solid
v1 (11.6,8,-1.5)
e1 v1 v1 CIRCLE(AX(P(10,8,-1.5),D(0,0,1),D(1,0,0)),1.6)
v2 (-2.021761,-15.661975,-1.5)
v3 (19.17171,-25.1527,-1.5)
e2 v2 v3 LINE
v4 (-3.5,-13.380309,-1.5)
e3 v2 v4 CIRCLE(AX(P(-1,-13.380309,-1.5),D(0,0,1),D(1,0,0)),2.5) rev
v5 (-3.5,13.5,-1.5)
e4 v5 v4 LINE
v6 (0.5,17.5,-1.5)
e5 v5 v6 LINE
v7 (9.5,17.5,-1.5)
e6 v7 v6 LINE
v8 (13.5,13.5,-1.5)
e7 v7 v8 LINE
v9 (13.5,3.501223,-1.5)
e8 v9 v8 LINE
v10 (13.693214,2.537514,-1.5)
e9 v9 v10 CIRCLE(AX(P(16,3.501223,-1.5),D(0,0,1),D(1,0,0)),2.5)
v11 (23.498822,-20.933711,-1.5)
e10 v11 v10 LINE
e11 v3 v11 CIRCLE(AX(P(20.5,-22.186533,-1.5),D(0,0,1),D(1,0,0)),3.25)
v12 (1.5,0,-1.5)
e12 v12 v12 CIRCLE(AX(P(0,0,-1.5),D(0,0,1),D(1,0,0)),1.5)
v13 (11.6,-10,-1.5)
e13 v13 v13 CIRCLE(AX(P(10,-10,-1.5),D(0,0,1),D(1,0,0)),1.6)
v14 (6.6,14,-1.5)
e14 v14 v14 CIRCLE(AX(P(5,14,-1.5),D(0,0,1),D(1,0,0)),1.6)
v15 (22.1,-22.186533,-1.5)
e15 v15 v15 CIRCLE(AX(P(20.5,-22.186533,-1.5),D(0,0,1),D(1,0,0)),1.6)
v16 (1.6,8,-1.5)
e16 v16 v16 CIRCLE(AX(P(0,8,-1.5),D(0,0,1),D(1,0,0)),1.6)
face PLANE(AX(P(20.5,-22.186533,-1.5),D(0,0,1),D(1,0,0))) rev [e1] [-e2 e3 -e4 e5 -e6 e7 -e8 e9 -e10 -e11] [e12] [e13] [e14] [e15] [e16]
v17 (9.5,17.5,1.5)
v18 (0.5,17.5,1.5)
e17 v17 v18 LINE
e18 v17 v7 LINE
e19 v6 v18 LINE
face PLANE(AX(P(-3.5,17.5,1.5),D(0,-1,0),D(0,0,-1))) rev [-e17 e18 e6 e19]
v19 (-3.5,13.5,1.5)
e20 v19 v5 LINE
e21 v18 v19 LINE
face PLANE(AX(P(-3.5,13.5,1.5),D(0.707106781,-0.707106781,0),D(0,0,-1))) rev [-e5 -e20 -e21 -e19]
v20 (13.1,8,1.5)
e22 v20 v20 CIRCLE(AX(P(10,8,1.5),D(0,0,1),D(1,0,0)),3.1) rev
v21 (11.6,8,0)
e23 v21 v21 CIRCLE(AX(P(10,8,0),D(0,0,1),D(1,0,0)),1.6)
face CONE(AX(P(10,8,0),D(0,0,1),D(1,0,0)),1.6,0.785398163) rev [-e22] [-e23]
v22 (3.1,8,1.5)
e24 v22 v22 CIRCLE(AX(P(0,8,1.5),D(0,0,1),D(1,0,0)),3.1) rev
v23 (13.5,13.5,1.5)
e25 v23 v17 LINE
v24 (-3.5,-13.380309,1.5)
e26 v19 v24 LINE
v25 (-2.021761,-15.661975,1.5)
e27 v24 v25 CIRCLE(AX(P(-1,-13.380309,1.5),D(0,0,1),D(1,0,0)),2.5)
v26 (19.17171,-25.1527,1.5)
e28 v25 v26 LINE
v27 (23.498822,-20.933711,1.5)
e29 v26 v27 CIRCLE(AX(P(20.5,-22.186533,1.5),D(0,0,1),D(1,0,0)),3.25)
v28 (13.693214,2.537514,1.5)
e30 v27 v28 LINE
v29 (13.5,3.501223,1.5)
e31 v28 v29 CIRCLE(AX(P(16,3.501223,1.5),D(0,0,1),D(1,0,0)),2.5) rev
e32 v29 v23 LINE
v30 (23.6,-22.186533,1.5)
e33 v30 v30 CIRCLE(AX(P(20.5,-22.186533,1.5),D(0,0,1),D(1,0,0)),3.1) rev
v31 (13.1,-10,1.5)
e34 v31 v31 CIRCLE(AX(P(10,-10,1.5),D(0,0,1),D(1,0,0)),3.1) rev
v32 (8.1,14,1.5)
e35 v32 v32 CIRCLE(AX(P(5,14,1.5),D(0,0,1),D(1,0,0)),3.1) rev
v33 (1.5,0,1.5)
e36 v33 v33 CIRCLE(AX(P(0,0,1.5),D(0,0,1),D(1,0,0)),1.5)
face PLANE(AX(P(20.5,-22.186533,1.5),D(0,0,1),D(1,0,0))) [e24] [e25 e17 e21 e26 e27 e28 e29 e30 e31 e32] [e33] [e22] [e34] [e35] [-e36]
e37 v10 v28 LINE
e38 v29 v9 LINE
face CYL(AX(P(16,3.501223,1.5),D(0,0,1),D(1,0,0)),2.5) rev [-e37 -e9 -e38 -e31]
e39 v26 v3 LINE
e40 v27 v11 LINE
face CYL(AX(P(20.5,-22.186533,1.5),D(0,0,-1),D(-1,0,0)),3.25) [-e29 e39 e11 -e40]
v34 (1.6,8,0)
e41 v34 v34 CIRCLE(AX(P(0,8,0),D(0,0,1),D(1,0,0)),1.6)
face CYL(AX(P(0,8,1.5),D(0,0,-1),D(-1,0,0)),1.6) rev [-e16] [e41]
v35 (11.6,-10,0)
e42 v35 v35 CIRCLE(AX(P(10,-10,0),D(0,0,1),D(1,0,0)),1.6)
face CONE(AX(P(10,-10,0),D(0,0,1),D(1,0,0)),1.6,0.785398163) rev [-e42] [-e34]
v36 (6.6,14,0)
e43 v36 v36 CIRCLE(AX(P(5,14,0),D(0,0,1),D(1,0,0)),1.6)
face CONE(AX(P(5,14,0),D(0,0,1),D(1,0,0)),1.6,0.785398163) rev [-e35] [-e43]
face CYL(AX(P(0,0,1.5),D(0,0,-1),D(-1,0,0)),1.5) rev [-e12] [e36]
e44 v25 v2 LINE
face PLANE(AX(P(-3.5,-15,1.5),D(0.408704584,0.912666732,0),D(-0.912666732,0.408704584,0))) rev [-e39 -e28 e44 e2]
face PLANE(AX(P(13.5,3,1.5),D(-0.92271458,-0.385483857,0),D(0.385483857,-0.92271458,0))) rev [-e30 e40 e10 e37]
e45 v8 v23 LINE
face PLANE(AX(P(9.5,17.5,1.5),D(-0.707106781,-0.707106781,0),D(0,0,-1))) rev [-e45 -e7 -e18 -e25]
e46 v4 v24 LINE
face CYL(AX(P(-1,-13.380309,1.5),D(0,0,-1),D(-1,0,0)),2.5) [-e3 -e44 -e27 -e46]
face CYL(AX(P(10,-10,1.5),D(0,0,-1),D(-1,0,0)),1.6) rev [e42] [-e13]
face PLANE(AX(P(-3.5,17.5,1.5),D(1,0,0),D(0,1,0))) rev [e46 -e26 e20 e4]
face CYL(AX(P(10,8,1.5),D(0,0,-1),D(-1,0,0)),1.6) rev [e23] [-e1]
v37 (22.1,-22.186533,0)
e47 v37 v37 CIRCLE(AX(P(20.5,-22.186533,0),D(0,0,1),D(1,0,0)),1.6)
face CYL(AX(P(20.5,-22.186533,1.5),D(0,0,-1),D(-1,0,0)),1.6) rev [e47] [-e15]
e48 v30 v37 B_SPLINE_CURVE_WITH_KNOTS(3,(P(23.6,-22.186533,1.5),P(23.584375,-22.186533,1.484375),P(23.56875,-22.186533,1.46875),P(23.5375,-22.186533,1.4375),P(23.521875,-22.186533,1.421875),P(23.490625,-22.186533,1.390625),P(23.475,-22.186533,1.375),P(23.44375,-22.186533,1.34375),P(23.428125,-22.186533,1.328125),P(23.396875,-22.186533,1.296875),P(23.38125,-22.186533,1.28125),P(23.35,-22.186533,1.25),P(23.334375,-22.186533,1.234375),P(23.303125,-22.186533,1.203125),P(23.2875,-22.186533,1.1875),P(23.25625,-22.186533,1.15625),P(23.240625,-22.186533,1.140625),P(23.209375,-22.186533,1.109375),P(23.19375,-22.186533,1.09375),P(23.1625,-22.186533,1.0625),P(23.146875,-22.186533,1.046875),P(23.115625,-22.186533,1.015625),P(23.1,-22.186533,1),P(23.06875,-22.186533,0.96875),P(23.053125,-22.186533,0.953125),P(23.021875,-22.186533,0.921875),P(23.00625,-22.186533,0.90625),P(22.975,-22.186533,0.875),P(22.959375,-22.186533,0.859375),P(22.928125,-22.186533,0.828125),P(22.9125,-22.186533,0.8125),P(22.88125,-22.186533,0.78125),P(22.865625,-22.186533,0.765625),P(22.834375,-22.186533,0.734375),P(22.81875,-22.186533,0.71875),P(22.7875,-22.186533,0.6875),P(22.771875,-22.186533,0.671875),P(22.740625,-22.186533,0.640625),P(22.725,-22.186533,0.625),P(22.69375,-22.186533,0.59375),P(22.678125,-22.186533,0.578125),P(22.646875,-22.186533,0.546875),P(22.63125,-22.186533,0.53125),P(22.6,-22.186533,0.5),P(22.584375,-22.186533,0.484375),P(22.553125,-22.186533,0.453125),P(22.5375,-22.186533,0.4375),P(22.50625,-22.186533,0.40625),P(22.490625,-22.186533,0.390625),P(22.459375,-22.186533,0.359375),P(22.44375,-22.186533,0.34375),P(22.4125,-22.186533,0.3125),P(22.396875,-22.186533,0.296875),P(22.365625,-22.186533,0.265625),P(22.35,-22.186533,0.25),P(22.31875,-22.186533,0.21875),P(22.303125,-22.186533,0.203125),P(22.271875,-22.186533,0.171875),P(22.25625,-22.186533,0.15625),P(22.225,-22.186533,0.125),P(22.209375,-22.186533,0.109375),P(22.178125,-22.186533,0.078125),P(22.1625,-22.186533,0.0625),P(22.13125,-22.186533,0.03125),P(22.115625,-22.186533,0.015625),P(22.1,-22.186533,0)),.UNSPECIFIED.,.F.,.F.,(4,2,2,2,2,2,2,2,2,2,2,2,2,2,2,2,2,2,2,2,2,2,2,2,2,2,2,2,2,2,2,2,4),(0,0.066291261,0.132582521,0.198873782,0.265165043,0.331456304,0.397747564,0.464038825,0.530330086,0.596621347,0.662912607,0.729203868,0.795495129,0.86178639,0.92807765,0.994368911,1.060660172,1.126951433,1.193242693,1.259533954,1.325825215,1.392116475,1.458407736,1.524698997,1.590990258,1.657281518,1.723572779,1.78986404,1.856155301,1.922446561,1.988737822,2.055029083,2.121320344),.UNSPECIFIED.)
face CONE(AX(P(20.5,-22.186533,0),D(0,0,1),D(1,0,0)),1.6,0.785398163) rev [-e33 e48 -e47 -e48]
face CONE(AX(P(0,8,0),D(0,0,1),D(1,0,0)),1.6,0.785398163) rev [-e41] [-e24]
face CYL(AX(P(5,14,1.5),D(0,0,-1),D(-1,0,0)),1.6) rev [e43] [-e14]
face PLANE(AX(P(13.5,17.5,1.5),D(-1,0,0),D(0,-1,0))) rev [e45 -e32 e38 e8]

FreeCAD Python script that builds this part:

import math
import FreeCAD as App
import Part
import Sketcher

V = App.Vector


def edges_at(feature, points):
    """Names of the edges that pass closest to the given points."""
    edges = feature.Shape.Edges
    near = lambda p: min(range(len(edges)), key=lambda i: edges[i].distToShape(Part.Vertex(*p))[0])
    return sorted({f"Edge{near(p) + 1}" for p in points})

doc = App.newDocument("Part")
body = doc.addObject("PartDesign::Body", "Body")

sketch1 = body.newObject("Sketcher::SketchObject", "Sketch")
sketch1.AttachmentSupport = (doc.getObject("XY_Plane"), [""])
sketch1.MapMode = "FlatFace"
sketch1.addGeometry([
    Part.LineSegment(V(-3.5, 17.5, 0), V(-3.5, -15, 0)),
    Part.LineSegment(V(-3.5, -15, 0), V(19.2, -25.2, 0)),
    Part.ArcOfCircle(Part.Circle(V(20.5, -22.2, 0), V(0, 0, 1), 3.2), math.radians(-114), math.radians(23)),
    Part.LineSegment(V(23.5, -20.9, 0), V(13.5, 3, 0)),
    Part.LineSegment(V(13.5, 3, 0), V(13.5, 17.5, 0)),
    Part.LineSegment(V(13.5, 17.5, 0), V(-3.5, 17.5, 0)),
    Part.Circle(V(10, -10, 0), V(0, 0, 1), 1.6),
    Part.Circle(V(20.5, -22.2, 0), V(0, 0, 1), 1.6),
    Part.Circle(V(0, 0, 0), V(0, 0, 1), 1.5),
    Part.Circle(V(0, 8, 0), V(0, 0, 1), 1.6),
    Part.Circle(V(10, 8, 0), V(0, 0, 1), 1.6),
    Part.Circle(V(5, 14, 0), V(0, 0, 1), 1.6),
], False)
sketch1.addConstraint([
    Sketcher.Constraint("Coincident", 0, 2, 1, 1),
    Sketcher.Constraint("Tangent", 1, 2, 2, 1),
    Sketcher.Constraint("Tangent", 2, 2, 3, 1),
    Sketcher.Constraint("Coincident", 3, 2, 4, 1),
    Sketcher.Constraint("Coincident", 4, 2, 5, 1),
    Sketcher.Constraint("Coincident", 5, 2, 0, 1),
    Sketcher.Constraint("Vertical", 0),
    Sketcher.Constraint("Vertical", 4),
    Sketcher.Constraint("Horizontal", 5),
    Sketcher.Constraint("Coincident", 8, 3, -1, 1),
    Sketcher.Constraint("Coincident", 7, 3, 2, 3),
    Sketcher.Constraint("Equal", 6, 7),
    Sketcher.Constraint("Equal", 7, 9),
    Sketcher.Constraint("Equal", 9, 10),
    Sketcher.Constraint("Equal", 10, 11),
    Sketcher.Constraint("PointOnObject", 9, 3, -2),
    Sketcher.Constraint("Horizontal", 9, 3, 10, 3),
    Sketcher.Constraint("Vertical", 6, 3, 10, 3),
    Sketcher.Constraint("Diameter", 8, 3.0),
    Sketcher.Constraint("Diameter", 6, 3.2),
    Sketcher.Constraint("DistanceX", 5, 2, 5, 1, 17.0),
    Sketcher.Constraint("Radius", 2, 3.25),
    Sketcher.Constraint("DistanceY", 0, 2, 0, 1, 32.5),
    Sketcher.Constraint("DistanceY", 4, 1, 4, 2, 14.5),
    Sketcher.Constraint("DistanceX", -1, 1, 6, 3, 10.0),
    Sketcher.Constraint("DistanceY", 6, 3, -1, 1, 10.0),
    Sketcher.Constraint("DistanceY", -1, 1, 9, 3, 8.0),
    Sketcher.Constraint("DistanceX", -1, 1, 11, 3, 5.0),
    Sketcher.Constraint("DistanceY", -1, 1, 11, 3, 14.0),
    Sketcher.Constraint("DistanceY", 0, 2, -1, 1, 15.0),
    Sketcher.Constraint("DistanceX", 0, 2, 2, 3, 24.0),
    Sketcher.Constraint("DistanceX", -1, 1, 2, 3, 20.5),
    Sketcher.Constraint("DistanceY", 1, 2, -1, 1, 25.1527),
])
pad1 = body.newObject("PartDesign::Pad", "Pad")
pad1.Profile = sketch1
pad1.Length = 3
pad1.Midplane = True
doc.recompute()

chamfer = body.newObject("PartDesign::Chamfer", "Chamfer")
chamfer.Base = (pad1, edges_at(pad1, [
    (8.4, -10, 1.5),
    (18.9, -22.187, 1.5),
    (-1.6, 8, 1.5),
    (8.4, 8, 1.5),
    (3.4, 14, 1.5),
]))
chamfer.Size = 1.5
doc.recompute()

fillet = body.newObject("PartDesign::Fillet", "Fillet")
fillet.Base = (chamfer, edges_at(chamfer, [(13.5, 3, 0), (-3.5, -15, 0)]))
fillet.Radius = 2.5
doc.recompute()

chamfer2 = body.newObject("PartDesign::Chamfer", "Chamfer001")
chamfer2.Base = (fillet, edges_at(fillet, [(13.5, 17.5, 0), (-3.5, 17.5, 0)]))
chamfer2.Size = 4

doc.recompute()
